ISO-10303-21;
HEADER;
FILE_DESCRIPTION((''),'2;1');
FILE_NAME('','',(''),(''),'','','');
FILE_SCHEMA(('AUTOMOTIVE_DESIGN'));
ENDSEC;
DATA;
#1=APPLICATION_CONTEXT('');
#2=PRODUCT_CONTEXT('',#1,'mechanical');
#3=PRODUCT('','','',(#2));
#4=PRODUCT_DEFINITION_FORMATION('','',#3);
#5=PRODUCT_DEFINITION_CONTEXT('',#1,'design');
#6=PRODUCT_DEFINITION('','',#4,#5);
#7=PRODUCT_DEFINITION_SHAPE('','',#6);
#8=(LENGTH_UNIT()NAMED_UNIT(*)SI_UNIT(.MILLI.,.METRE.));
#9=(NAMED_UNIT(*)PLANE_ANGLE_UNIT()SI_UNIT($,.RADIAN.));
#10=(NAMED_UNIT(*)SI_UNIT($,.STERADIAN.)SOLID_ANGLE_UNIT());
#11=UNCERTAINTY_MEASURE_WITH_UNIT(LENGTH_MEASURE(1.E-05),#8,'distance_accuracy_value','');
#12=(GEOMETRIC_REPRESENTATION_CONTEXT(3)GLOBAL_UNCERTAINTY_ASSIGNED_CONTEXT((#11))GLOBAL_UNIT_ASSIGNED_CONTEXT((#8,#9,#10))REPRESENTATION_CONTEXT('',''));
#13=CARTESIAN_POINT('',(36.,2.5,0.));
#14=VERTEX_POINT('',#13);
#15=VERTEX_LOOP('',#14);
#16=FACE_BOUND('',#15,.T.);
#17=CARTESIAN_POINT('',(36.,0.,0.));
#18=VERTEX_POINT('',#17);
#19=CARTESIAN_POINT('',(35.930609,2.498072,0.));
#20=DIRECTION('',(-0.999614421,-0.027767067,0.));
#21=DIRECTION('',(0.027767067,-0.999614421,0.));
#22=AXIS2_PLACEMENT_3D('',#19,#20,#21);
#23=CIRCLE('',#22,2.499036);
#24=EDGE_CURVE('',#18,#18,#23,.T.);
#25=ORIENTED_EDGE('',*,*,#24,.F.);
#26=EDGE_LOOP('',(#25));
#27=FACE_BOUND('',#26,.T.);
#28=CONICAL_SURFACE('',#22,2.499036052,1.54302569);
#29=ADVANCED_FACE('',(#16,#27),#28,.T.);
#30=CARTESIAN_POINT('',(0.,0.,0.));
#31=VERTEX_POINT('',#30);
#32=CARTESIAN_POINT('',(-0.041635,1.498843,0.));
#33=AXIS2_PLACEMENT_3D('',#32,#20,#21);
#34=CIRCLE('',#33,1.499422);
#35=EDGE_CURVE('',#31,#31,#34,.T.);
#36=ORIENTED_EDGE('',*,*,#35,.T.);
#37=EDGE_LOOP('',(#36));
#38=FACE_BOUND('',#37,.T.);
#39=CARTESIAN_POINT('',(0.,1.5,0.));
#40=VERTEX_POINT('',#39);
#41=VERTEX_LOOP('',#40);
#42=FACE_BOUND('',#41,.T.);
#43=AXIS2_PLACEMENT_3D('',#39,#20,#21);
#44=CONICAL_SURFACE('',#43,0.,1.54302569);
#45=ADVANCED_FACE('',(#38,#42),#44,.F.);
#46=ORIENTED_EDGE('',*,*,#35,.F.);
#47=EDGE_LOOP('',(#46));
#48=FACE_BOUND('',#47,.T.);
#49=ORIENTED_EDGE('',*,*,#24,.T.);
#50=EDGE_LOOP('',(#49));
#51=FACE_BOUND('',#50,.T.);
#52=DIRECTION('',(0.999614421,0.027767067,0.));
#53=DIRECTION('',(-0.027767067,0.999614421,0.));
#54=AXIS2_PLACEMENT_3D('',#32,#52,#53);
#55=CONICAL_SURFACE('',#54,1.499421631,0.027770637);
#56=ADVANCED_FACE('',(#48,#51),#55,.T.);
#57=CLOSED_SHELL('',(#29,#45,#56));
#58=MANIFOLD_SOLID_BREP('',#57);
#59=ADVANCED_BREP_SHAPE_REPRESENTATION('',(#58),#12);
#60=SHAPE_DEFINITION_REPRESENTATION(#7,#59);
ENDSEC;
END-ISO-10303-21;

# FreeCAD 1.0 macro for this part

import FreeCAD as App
import Part
import Sketcher
Q = App.Units.Quantity

doc = App.newDocument("Part")
body = doc.addObject("PartDesign::Body", "Body")

# Sketch on XY plane
sketch1 = body.newObject("Sketcher::SketchObject", "Sketch")
sketch1.AttachmentSupport = (doc.getObject("XY_Plane"), [""])
sketch1.MapMode = "FlatFace"
sketch1.addGeometry([
    Part.LineSegment(App.Vector(0, 0, 0), App.Vector(36, 0, 0)),
    Part.LineSegment(App.Vector(36, 0, 0), App.Vector(36, 2.5, 0)),
    Part.LineSegment(App.Vector(36, 2.5, 0), App.Vector(0, 1.5, 0)),
    Part.LineSegment(App.Vector(0, 1.5, 0), App.Vector(0, 0, 0)),
], False)
sketch1.addGeometry(Part.LineSegment(App.Vector(0, 1.5, 0), App.Vector(36, 2.5, 0)), True)  # axis
sketch1.addConstraint([
    Sketcher.Constraint("Coincident", 0, 2, 1, 1),
    Sketcher.Constraint("Coincident", 1, 2, 2, 1),
    Sketcher.Constraint("Coincident", 2, 2, 3, 1),
    Sketcher.Constraint("Coincident", 3, 2, 0, 1),
    Sketcher.Constraint("Horizontal", 0),
    Sketcher.Constraint("Vertical", 1),
    Sketcher.Constraint("Vertical", 3),
    Sketcher.Constraint("Coincident", 3, 2, -1, 1),
    Sketcher.Constraint("Coincident", 4, 2, 1, 2),
    Sketcher.Constraint("Parallel", 2, 4),
    Sketcher.Constraint("DistanceX", 0, 1, 0, 2, Q("36 mm")),
    Sketcher.Constraint("DistanceY", 1, 1, 1, 2, Q("2.5 mm")),
    Sketcher.Constraint("DistanceY", 3, 2, 3, 1, Q("1.5 mm")),
    Sketcher.Constraint("Distance", 4, Q("36.055537 mm")),
])
revolution = body.newObject("PartDesign::Revolution", "Revolution")
revolution.Profile = sketch1
revolution.ReferenceAxis = (sketch1, ["Axis0"])
revolution.Angle = 360

doc.recompute()
